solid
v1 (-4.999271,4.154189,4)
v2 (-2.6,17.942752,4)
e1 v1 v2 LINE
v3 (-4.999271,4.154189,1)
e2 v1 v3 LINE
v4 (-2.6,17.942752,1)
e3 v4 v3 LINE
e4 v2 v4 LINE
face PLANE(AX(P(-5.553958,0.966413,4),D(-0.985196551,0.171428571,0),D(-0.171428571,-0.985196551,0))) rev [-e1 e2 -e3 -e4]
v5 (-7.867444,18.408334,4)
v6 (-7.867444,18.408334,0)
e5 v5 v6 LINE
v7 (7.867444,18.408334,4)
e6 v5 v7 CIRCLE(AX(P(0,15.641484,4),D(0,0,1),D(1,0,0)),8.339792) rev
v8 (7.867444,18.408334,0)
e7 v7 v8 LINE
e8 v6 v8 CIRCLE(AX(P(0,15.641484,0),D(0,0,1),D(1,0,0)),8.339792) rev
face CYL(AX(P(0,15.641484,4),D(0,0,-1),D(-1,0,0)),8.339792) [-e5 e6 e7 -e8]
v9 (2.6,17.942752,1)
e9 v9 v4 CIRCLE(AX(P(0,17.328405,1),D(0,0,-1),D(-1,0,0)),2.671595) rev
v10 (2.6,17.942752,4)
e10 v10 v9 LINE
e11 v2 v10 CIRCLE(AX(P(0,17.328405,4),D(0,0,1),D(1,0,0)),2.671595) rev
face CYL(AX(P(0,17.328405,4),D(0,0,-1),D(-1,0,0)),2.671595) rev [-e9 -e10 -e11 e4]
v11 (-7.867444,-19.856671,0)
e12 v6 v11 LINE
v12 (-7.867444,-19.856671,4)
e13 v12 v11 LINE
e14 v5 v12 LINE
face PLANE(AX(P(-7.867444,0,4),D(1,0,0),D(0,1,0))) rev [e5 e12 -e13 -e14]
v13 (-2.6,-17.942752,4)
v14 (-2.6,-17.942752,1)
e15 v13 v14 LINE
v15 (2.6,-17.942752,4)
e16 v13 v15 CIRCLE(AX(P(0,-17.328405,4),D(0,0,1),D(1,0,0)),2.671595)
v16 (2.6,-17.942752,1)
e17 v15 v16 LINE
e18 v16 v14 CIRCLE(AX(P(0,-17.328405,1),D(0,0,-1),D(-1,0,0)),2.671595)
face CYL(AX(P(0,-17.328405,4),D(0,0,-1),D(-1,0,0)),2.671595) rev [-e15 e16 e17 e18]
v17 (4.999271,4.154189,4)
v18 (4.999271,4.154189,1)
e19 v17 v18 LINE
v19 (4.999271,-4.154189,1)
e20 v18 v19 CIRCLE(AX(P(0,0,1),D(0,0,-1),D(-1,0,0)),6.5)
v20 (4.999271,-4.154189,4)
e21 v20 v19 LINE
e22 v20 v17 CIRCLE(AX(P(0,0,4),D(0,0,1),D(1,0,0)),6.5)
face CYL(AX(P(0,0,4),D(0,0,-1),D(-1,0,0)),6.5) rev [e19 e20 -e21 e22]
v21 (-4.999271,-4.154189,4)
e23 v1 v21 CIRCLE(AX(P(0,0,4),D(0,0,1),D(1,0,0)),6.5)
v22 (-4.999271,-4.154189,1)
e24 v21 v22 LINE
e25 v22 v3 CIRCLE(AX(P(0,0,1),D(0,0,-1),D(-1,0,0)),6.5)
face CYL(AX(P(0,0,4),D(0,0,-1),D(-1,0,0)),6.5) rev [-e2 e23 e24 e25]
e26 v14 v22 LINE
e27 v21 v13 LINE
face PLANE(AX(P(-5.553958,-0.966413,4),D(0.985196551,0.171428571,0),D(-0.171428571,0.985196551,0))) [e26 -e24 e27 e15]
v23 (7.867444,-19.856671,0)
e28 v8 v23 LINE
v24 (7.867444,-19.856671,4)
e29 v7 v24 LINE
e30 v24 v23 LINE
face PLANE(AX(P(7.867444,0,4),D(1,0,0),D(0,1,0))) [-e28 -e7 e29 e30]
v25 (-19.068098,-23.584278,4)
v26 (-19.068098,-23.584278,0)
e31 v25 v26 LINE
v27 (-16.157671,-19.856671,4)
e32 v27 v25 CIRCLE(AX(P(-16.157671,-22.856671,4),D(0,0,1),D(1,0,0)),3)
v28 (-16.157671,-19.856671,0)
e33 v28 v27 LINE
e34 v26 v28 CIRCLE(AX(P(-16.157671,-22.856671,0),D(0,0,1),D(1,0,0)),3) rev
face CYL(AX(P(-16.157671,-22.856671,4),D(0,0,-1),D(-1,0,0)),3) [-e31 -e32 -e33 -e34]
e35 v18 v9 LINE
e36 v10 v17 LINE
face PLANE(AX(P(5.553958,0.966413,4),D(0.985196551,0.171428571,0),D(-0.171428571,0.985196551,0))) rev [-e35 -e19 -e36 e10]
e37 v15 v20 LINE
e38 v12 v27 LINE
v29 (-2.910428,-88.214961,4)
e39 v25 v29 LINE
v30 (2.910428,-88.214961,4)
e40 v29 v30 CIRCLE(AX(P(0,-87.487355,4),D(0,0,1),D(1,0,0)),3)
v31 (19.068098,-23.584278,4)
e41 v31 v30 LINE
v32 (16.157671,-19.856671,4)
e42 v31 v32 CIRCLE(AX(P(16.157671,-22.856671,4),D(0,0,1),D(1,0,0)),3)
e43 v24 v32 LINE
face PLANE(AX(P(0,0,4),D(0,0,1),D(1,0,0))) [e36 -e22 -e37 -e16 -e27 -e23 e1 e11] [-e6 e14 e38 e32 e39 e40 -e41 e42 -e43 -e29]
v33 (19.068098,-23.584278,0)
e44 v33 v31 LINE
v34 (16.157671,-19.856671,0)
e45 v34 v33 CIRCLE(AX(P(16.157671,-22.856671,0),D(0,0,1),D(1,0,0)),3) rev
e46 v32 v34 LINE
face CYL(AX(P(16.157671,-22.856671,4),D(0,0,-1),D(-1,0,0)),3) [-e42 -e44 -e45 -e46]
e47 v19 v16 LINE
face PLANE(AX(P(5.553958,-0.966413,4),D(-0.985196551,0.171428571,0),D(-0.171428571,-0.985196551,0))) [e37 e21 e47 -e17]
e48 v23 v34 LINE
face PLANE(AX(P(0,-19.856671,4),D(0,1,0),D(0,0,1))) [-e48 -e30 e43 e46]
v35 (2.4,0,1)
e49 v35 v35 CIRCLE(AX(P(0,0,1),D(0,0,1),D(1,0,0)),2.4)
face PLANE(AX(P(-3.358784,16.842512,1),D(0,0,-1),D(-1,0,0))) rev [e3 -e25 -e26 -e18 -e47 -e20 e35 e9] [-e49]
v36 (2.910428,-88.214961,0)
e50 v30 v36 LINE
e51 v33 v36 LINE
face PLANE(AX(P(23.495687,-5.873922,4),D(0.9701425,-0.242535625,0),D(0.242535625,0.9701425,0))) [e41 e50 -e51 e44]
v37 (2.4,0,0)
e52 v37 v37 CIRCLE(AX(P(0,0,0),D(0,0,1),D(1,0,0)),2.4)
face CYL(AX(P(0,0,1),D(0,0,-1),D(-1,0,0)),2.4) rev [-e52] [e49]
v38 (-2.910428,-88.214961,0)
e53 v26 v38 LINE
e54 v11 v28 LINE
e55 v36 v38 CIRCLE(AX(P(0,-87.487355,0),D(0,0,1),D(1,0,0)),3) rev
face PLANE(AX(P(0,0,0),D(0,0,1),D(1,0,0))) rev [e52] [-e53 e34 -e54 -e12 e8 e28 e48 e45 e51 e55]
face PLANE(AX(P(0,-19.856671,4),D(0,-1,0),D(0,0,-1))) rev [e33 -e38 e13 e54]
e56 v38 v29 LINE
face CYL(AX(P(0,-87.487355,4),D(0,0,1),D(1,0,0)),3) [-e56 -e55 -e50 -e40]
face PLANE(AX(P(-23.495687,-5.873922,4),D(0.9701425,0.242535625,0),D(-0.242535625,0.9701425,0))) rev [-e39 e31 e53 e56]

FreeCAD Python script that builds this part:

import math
import FreeCAD as App
import Part
import Sketcher

V = App.Vector
Q = App.Units.Quantity


def edges_at(feature, points):
    """Names of the edges that pass closest to the given points."""
    edges = feature.Shape.Edges
    near = lambda p: min(range(len(edges)), key=lambda i: edges[i].distToShape(Part.Vertex(*p))[0])
    return sorted({f"Edge{near(p) + 1}" for p in points})

doc = App.newDocument("Part")
params = doc.addObject("Spreadsheet::Sheet", "Params")
for row, (alias, value) in enumerate([
    ("sketch1_radius", "6.5 mm"),
    ("pad1_length", "4 mm"),
    ("sketch2_diameter", "4.8 mm"),
    ("pad2_length", "1 mm"),
    ("fillet_radius", "3 mm"),
], start=1):
    params.set(f"A{row}", alias)
    params.set(f"B{row}", "=" + value)
    params.setAlias(f"B{row}", alias)

body = doc.addObject("PartDesign::Body", "Body")

sketch1 = body.newObject("Sketcher::SketchObject", "Sketch")
sketch1.AttachmentSupport = (doc.getObject("XY_Plane"), [""])
sketch1.MapMode = "FlatFace"
sketch1.addGeometry([
    Part.LineSegment(V(-7.867444, 18.408334, 0), V(-7.867444, -19.856671, 0)),
    Part.LineSegment(V(-7.867444, -19.856671, 0), V(-20, -19.856671, 0)),
    Part.LineSegment(V(-20, -19.856671, 0), V(0, -99.856671, 0)),
    Part.LineSegment(V(0, -99.856671, 0), V(20, -19.856671, 0)),
    Part.LineSegment(V(20, -19.856671, 0), V(7.867444, -19.856671, 0)),
    Part.LineSegment(V(7.867444, -19.856671, 0), V(7.867444, 18.408334, 0)),
    Part.ArcOfCircle(Part.Circle(V(0, 15.641484, 0), V(0, 0, 1), 8.339792), math.radians(19.375933), math.radians(160.624067)),
    Part.LineSegment(V(-2.6, -17.942752, 0), V(-4.999271, -4.154189, 0)),
    Part.ArcOfCircle(Part.Circle(V(0, 0, 0), V(0, 0, 1), 6.5), math.radians(140.274808), math.radians(219.725192)),
    Part.LineSegment(V(-4.999271, 4.154189, 0), V(-2.6, 17.942752, 0)),
    Part.ArcOfCircle(Part.Circle(V(0, 17.328405, 0), V(0, 0, 1), 2.671595), math.radians(13.294433), math.radians(166.705567)),
    Part.LineSegment(V(2.6, 17.942752, 0), V(4.999271, 4.154189, 0)),
    Part.ArcOfCircle(Part.Circle(V(0, 0, 0), V(0, 0, 1), 6.5), math.radians(-39.725192), math.radians(39.725192)),
    Part.LineSegment(V(4.999271, -4.154189, 0), V(2.6, -17.942752, 0)),
    Part.ArcOfCircle(Part.Circle(V(0, -17.328405, 0), V(0, 0, 1), 2.671595), math.radians(-166.705567), math.radians(-13.294433)),
], False)
sketch1.addConstraint([
    Sketcher.Constraint("Coincident", 0, 2, 1, 1),
    Sketcher.Constraint("Coincident", 1, 2, 2, 1),
    Sketcher.Constraint("Coincident", 2, 2, 3, 1),
    Sketcher.Constraint("Coincident", 3, 2, 4, 1),
    Sketcher.Constraint("Coincident", 4, 2, 5, 1),
    Sketcher.Constraint("Coincident", 5, 2, 6, 1),
    Sketcher.Constraint("Coincident", 6, 2, 0, 1),
    Sketcher.Constraint("Coincident", 7, 2, 8, 2),
    Sketcher.Constraint("Coincident", 8, 1, 9, 1),
    Sketcher.Constraint("Coincident", 9, 2, 10, 2),
    Sketcher.Constraint("Coincident", 10, 1, 11, 1),
    Sketcher.Constraint("Coincident", 11, 2, 12, 2),
    Sketcher.Constraint("Coincident", 12, 1, 13, 1),
    Sketcher.Constraint("Coincident", 13, 2, 14, 2),
    Sketcher.Constraint("Coincident", 14, 1, 7, 1),
    Sketcher.Constraint("Vertical", 0),
    Sketcher.Constraint("Horizontal", 1),
    Sketcher.Constraint("Horizontal", 4),
    Sketcher.Constraint("Vertical", 5),
    Sketcher.Constraint("Coincident", 8, 3, -1, 1),
    Sketcher.Constraint("Coincident", 12, 3, -1, 1),
    Sketcher.Constraint("Equal", 8, 12),
    Sketcher.Constraint("Equal", 10, 14),
    Sketcher.Constraint("Symmetric", 10, 3, 14, 3, -1, 1),
    Sketcher.Constraint("Symmetric", 1, 2, 3, 2, -2),
    Sketcher.Constraint("Symmetric", 5, 2, 6, 2, -2),
    Sketcher.Constraint("Symmetric", 9, 2, 10, 1, -2),
    Sketcher.Constraint("PointOnObject", 2, 2, -2),
    Sketcher.Constraint("Parallel", 7, 11),
    Sketcher.Constraint("Parallel", 9, 13),
    Sketcher.Constraint("Horizontal", 8, 1, 11, 2),
    Sketcher.Constraint("Horizontal", 7, 2, 12, 1),
    Sketcher.Constraint("Vertical", 7, 2, 8, 1),
    Sketcher.Constraint("Radius", 8, Q("6.5 mm")),
    Sketcher.Constraint("DistanceX", 1, 2, -1, 1, Q("20 mm")),
    Sketcher.Constraint("DistanceY", 2, 2, 0, 2, Q("80 mm")),
    Sketcher.Constraint("DistanceX", 9, 2, -1, 1, Q("2.6 mm")),
    Sketcher.Constraint("Radius", 6, Q("8.339792 mm")),
    Sketcher.Constraint("Radius", 10, Q("2.671595 mm")),
    Sketcher.Constraint("DistanceX", 1, 2, 1, 1, Q("12.132556 mm")),
    Sketcher.Constraint("DistanceY", 0, 2, 0, 1, Q("38.265006 mm")),
    Sketcher.Constraint("DistanceY", 0, 2, -1, 1, Q("19.856671 mm")),
    Sketcher.Constraint("DistanceX", 7, 2, -1, 1, Q("4.999271 mm")),
    Sketcher.Constraint("DistanceY", -1, 1, 9, 2, Q("17.942752 mm")),
])
sketch1.setExpression("Constraints[33]", "Params.sketch1_radius")
pad1 = body.newObject("PartDesign::Pad", "Pad")
pad1.Profile = sketch1
pad1.setExpression("Length", "Params.pad1_length")

sketch2 = body.newObject("Sketcher::SketchObject", "Sketch001")
sketch2.AttachmentSupport = (doc.getObject("XY_Plane"), [""])
sketch2.MapMode = "FlatFace"
sketch2.addGeometry([
    Part.LineSegment(V(4.497563, 20.172267, 0), V(-3.702326, 20.172267, 0)),
    Part.ArcOfCircle(Part.Circle(V(-3.358784, 16.842512, 0), V(0, 0, 1), 3.347431), math.radians(95.890553), math.radians(169.177327)),
    Part.LineSegment(V(-6.646674, 17.471059, 0), V(-6.646674, -20.628324, 0)),
    Part.LineSegment(V(-6.646674, -20.628324, 0), V(7.032819, -20.628324, 0)),
    Part.LineSegment(V(7.032819, -20.628324, 0), V(7.032819, 17.40763, 0)),
    Part.ArcOfCircle(Part.Circle(V(2.768642, 16.042023, 0), V(0, 0, 1), 4.477509), math.radians(17.757716), math.radians(67.285809)),
    Part.Circle(V(0, 0, 0), V(0, 0, 1), 2.4),
], False)
sketch2.addConstraint([
    Sketcher.Constraint("Coincident", 0, 2, 1, 1),
    Sketcher.Constraint("Coincident", 1, 2, 2, 1),
    Sketcher.Constraint("Coincident", 2, 2, 3, 1),
    Sketcher.Constraint("Coincident", 3, 2, 4, 1),
    Sketcher.Constraint("Coincident", 4, 2, 5, 1),
    Sketcher.Constraint("Coincident", 5, 2, 0, 1),
    Sketcher.Constraint("Horizontal", 0),
    Sketcher.Constraint("Vertical", 2),
    Sketcher.Constraint("Horizontal", 3),
    Sketcher.Constraint("Vertical", 4),
    Sketcher.Constraint("Coincident", 6, 3, -1, 1),
    Sketcher.Constraint("Diameter", 6, Q("4.8 mm")),
    Sketcher.Constraint("Radius", 1, Q("3.347431 mm")),
    Sketcher.Constraint("Radius", 5, Q("4.477509 mm")),
    Sketcher.Constraint("DistanceX", 0, 2, 0, 1, Q("8.199889 mm")),
    Sketcher.Constraint("DistanceX", 3, 1, 3, 2, Q("13.679493 mm")),
    Sketcher.Constraint("DistanceY", 2, 2, 2, 1, Q("38.099383 mm")),
    Sketcher.Constraint("DistanceY", 4, 1, 4, 2, Q("38.035954 mm")),
    Sketcher.Constraint("DistanceY", -1, 1, 1, 3, Q("16.842512 mm")),
    Sketcher.Constraint("DistanceY", -1, 1, 1, 2, Q("17.471059 mm")),
    Sketcher.Constraint("DistanceX", -1, 1, 3, 2, Q("7.032819 mm")),
    Sketcher.Constraint("DistanceY", 5, 3, 1, 3, Q("0.800489 mm")),
])
sketch2.setExpression("Constraints[11]", "Params.sketch2_diameter")
pad2 = body.newObject("PartDesign::Pad", "Pad001")
pad2.Profile = sketch2
pad2.setExpression("Length", "Params.pad2_length")
doc.recompute()

fillet = body.newObject("PartDesign::Fillet", "Fillet")
fillet.Base = (pad2, edges_at(pad2, [(20, -19.857, 2), (0, -99.857, 2), (-20, -19.857, 2)]))
fillet.setExpression("Radius", "Params.fillet_radius")

doc.recompute()
